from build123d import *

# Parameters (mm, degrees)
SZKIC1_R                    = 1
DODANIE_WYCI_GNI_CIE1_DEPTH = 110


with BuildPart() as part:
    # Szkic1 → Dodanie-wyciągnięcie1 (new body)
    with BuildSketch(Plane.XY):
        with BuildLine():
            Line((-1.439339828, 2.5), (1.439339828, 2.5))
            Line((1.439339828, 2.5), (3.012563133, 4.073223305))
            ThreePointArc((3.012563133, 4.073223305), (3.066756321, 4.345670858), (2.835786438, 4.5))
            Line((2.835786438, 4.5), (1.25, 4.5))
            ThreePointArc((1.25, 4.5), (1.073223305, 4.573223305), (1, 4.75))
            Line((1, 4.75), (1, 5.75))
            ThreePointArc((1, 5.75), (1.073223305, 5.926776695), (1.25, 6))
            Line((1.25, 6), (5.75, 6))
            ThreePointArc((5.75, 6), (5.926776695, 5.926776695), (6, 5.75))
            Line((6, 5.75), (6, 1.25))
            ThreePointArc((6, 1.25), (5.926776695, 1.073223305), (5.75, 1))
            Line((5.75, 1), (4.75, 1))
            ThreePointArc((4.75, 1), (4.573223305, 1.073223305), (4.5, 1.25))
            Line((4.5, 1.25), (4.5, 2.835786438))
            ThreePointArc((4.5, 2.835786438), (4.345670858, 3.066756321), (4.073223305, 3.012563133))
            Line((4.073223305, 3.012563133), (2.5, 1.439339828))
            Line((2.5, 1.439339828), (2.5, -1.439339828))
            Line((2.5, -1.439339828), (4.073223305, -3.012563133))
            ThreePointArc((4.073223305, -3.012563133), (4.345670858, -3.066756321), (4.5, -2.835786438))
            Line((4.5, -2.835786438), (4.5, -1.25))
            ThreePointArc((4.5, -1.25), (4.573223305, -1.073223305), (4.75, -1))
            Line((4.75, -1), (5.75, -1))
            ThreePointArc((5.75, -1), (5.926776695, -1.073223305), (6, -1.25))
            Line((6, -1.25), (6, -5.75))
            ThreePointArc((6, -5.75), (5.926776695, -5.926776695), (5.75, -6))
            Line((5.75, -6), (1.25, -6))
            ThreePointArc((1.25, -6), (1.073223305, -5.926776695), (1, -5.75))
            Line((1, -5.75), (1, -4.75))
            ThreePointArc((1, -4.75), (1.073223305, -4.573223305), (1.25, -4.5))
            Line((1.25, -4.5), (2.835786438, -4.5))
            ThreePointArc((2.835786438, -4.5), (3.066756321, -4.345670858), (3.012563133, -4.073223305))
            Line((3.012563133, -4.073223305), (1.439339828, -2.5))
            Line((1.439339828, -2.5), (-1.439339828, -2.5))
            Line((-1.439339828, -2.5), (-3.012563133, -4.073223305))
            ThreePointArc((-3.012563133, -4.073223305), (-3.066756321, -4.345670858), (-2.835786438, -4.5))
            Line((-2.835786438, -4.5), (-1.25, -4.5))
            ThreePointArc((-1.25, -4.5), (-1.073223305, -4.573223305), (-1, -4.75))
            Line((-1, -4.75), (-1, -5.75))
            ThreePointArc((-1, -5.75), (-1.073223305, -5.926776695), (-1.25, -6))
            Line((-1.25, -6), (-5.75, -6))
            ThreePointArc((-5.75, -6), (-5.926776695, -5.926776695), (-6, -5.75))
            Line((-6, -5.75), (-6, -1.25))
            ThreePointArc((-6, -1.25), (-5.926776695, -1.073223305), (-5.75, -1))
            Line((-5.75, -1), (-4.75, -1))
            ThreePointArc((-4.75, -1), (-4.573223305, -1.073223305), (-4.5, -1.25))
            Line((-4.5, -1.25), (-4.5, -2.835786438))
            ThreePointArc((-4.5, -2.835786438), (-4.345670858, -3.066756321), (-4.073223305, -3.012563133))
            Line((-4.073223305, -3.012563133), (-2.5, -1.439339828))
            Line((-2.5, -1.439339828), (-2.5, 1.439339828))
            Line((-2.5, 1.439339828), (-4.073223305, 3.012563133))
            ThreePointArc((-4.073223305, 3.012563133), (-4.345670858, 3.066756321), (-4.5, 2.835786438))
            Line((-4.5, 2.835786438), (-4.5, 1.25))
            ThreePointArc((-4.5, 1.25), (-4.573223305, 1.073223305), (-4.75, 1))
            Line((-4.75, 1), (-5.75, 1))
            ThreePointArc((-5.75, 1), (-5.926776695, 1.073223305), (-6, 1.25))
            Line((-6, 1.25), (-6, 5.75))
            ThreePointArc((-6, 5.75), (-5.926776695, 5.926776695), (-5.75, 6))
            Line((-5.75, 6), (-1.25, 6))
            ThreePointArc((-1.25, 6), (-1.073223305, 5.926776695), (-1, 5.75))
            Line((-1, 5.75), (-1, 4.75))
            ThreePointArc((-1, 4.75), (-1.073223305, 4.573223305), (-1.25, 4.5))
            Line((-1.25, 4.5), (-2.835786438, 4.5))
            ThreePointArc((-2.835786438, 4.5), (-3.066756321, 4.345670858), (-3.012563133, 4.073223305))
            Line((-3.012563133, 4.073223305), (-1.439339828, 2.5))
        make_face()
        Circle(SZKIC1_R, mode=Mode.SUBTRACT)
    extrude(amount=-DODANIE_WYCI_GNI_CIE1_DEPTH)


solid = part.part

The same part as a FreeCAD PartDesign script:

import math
import FreeCAD as App
import Part
import Sketcher
Q = App.Units.Quantity

doc = App.newDocument("Part")
body = doc.addObject("PartDesign::Body", "Body")

sketch1 = doc.addObject("Sketcher::SketchObject", "Sketch")
body.addObject(sketch1)
sketch1.AttachmentSupport = (doc.XY_Plane, [""])
sketch1.MapMode = "FlatFace"
sketch1.addGeometry([
    Part.LineSegment(App.Vector(1.44, 2.5, 0), App.Vector(-1.44, 2.5, 0)),
    Part.LineSegment(App.Vector(-1.44, 2.5, 0), App.Vector(-3.01, 4.07, 0)),
    Part.ArcOfCircle(Part.Circle(App.Vector(-2.84, 4.25, 0), App.Vector(0, 0, 1), 0.25), math.radians(90), math.radians(225)),
    Part.LineSegment(App.Vector(-2.84, 4.5, 0), App.Vector(-1.25, 4.5, 0)),
    Part.ArcOfCircle(Part.Circle(App.Vector(-1.25, 4.75, 0), App.Vector(0, 0, 1), 0.25), math.radians(-90), math.radians(0)),
    Part.LineSegment(App.Vector(-1, 4.75, 0), App.Vector(-1, 5.75, 0)),
    Part.ArcOfCircle(Part.Circle(App.Vector(-1.25, 5.75, 0), App.Vector(0, 0, 1), 0.25), math.radians(0), math.radians(90)),
    Part.LineSegment(App.Vector(-1.25, 6, 0), App.Vector(-5.75, 6, 0)),
    Part.ArcOfCircle(Part.Circle(App.Vector(-5.75, 5.75, 0), App.Vector(0, 0, 1), 0.25), math.radians(90), math.radians(180)),
    Part.LineSegment(App.Vector(-6, 5.75, 0), App.Vector(-6, 1.25, 0)),
    Part.ArcOfCircle(Part.Circle(App.Vector(-5.75, 1.25, 0), App.Vector(0, 0, 1), 0.25), math.radians(-180), math.radians(-90)),
    Part.LineSegment(App.Vector(-5.75, 1, 0), App.Vector(-4.75, 1, 0)),
    Part.ArcOfCircle(Part.Circle(App.Vector(-4.75, 1.25, 0), App.Vector(0, 0, 1), 0.25), math.radians(-90), math.radians(0)),
    Part.LineSegment(App.Vector(-4.5, 1.25, 0), App.Vector(-4.5, 2.84, 0)),
    Part.ArcOfCircle(Part.Circle(App.Vector(-4.25, 2.84, 0), App.Vector(0, 0, 1), 0.25), math.radians(45), math.radians(180)),
    Part.LineSegment(App.Vector(-4.07, 3.01, 0), App.Vector(-2.5, 1.44, 0)),
    Part.LineSegment(App.Vector(-2.5, 1.44, 0), App.Vector(-2.5, -1.44, 0)),
    Part.LineSegment(App.Vector(-2.5, -1.44, 0), App.Vector(-4.07, -3.01, 0)),
    Part.ArcOfCircle(Part.Circle(App.Vector(-4.25, -2.84, 0), App.Vector(0, 0, 1), 0.25), math.radians(180), math.radians(315)),
    Part.LineSegment(App.Vector(-4.5, -2.84, 0), App.Vector(-4.5, -1.25, 0)),
    Part.ArcOfCircle(Part.Circle(App.Vector(-4.75, -1.25, 0), App.Vector(0, 0, 1), 0.25), math.radians(0), math.radians(90)),
    Part.LineSegment(App.Vector(-4.75, -1, 0), App.Vector(-5.75, -1, 0)),
    Part.ArcOfCircle(Part.Circle(App.Vector(-5.75, -1.25, 0), App.Vector(0, 0, 1), 0.25), math.radians(90), math.radians(180)),
    Part.LineSegment(App.Vector(-6, -1.25, 0), App.Vector(-6, -5.75, 0)),
    Part.ArcOfCircle(Part.Circle(App.Vector(-5.75, -5.75, 0), App.Vector(0, 0, 1), 0.25), math.radians(-180), math.radians(-90)),
    Part.LineSegment(App.Vector(-5.75, -6, 0), App.Vector(-1.25, -6, 0)),
    Part.ArcOfCircle(Part.Circle(App.Vector(-1.25, -5.75, 0), App.Vector(0, 0, 1), 0.25), math.radians(-90), math.radians(0)),
    Part.LineSegment(App.Vector(-1, -5.75, 0), App.Vector(-1, -4.75, 0)),
    Part.ArcOfCircle(Part.Circle(App.Vector(-1.25, -4.75, 0), App.Vector(0, 0, 1), 0.25), math.radians(0), math.radians(90)),
    Part.LineSegment(App.Vector(-1.25, -4.5, 0), App.Vector(-2.84, -4.5, 0)),
    Part.ArcOfCircle(Part.Circle(App.Vector(-2.84, -4.25, 0), App.Vector(0, 0, 1), 0.25), math.radians(135), math.radians(270)),
    Part.LineSegment(App.Vector(-3.01, -4.07, 0), App.Vector(-1.44, -2.5, 0)),
    Part.LineSegment(App.Vector(-1.44, -2.5, 0), App.Vector(1.44, -2.5, 0)),
    Part.LineSegment(App.Vector(1.44, -2.5, 0), App.Vector(3.01, -4.07, 0)),
    Part.ArcOfCircle(Part.Circle(App.Vector(2.84, -4.25, 0), App.Vector(0, 0, 1), 0.25), math.radians(-90), math.radians(45)),
    Part.LineSegment(App.Vector(2.84, -4.5, 0), App.Vector(1.25, -4.5, 0)),
    Part.ArcOfCircle(Part.Circle(App.Vector(1.25, -4.75, 0), App.Vector(0, 0, 1), 0.25), math.radians(90), math.radians(180)),
    Part.LineSegment(App.Vector(1, -4.75, 0), App.Vector(1, -5.75, 0)),
    Part.ArcOfCircle(Part.Circle(App.Vector(1.25, -5.75, 0), App.Vector(0, 0, 1), 0.25), math.radians(-180), math.radians(-90)),
    Part.LineSegment(App.Vector(1.25, -6, 0), App.Vector(5.75, -6, 0)),
    Part.ArcOfCircle(Part.Circle(App.Vector(5.75, -5.75, 0), App.Vector(0, 0, 1), 0.25), math.radians(-90), math.radians(0)),
    Part.LineSegment(App.Vector(6, -5.75, 0), App.Vector(6, -1.25, 0)),
    Part.ArcOfCircle(Part.Circle(App.Vector(5.75, -1.25, 0), App.Vector(0, 0, 1), 0.25), math.radians(0), math.radians(90)),
    Part.LineSegment(App.Vector(5.75, -1, 0), App.Vector(4.75, -1, 0)),
    Part.ArcOfCircle(Part.Circle(App.Vector(4.75, -1.25, 0), App.Vector(0, 0, 1), 0.25), math.radians(90), math.radians(180)),
    Part.LineSegment(App.Vector(4.5, -1.25, 0), App.Vector(4.5, -2.84, 0)),
    Part.ArcOfCircle(Part.Circle(App.Vector(4.25, -2.84, 0), App.Vector(0, 0, 1), 0.25), math.radians(-135), math.radians(0)),
    Part.LineSegment(App.Vector(4.07, -3.01, 0), App.Vector(2.5, -1.44, 0)),
    Part.LineSegment(App.Vector(2.5, -1.44, 0), App.Vector(2.5, 1.44, 0)),
    Part.LineSegment(App.Vector(2.5, 1.44, 0), App.Vector(4.07, 3.01, 0)),
    Part.ArcOfCircle(Part.Circle(App.Vector(4.25, 2.84, 0), App.Vector(0, 0, 1), 0.25), math.radians(0), math.radians(135)),
    Part.LineSegment(App.Vector(4.5, 2.84, 0), App.Vector(4.5, 1.25, 0)),
    Part.ArcOfCircle(Part.Circle(App.Vector(4.75, 1.25, 0), App.Vector(0, 0, 1), 0.25), math.radians(-180), math.radians(-90)),
    Part.LineSegment(App.Vector(4.75, 1, 0), App.Vector(5.75, 1, 0)),
    Part.ArcOfCircle(Part.Circle(App.Vector(5.75, 1.25, 0), App.Vector(0, 0, 1), 0.25), math.radians(-90), math.radians(0)),
    Part.LineSegment(App.Vector(6, 1.25, 0), App.Vector(6, 5.75, 0)),
    Part.ArcOfCircle(Part.Circle(App.Vector(5.75, 5.75, 0), App.Vector(0, 0, 1), 0.25), math.radians(0), math.radians(90)),
    Part.LineSegment(App.Vector(5.75, 6, 0), App.Vector(1.25, 6, 0)),
    Part.ArcOfCircle(Part.Circle(App.Vector(1.25, 5.75, 0), App.Vector(0, 0, 1), 0.25), math.radians(90), math.radians(180)),
    Part.LineSegment(App.Vector(1, 5.75, 0), App.Vector(1, 4.75, 0)),
    Part.ArcOfCircle(Part.Circle(App.Vector(1.25, 4.75, 0), App.Vector(0, 0, 1), 0.25), math.radians(-180), math.radians(-90)),
    Part.LineSegment(App.Vector(1.25, 4.5, 0), App.Vector(2.84, 4.5, 0)),
    Part.ArcOfCircle(Part.Circle(App.Vector(2.84, 4.25, 0), App.Vector(0, 0, 1), 0.25), math.radians(-45), math.radians(90)),
    Part.LineSegment(App.Vector(3.01, 4.07, 0), App.Vector(1.44, 2.5, 0)),
    Part.Circle(App.Vector(0, 0, 0), App.Vector(0, 0, 1), 1),
], False)
sketch1.addConstraint([
    Sketcher.Constraint("Coincident", 0, 2, 1, 1),
    Sketcher.Constraint("Tangent", 1, 2, 2, 2),
    Sketcher.Constraint("Tangent", 2, 1, 3, 1),
    Sketcher.Constraint("Tangent", 3, 2, 4, 1),
    Sketcher.Constraint("Tangent", 4, 2, 5, 1),
    Sketcher.Constraint("Tangent", 5, 2, 6, 1),
    Sketcher.Constraint("Tangent", 6, 2, 7, 1),
    Sketcher.Constraint("Tangent", 7, 2, 8, 1),
    Sketcher.Constraint("Tangent", 8, 2, 9, 1),
    Sketcher.Constraint("Tangent", 9, 2, 10, 1),
    Sketcher.Constraint("Tangent", 10, 2, 11, 1),
    Sketcher.Constraint("Tangent", 11, 2, 12, 1),
    Sketcher.Constraint("Tangent", 12, 2, 13, 1),
    Sketcher.Constraint("Tangent", 13, 2, 14, 2),
    Sketcher.Constraint("Tangent", 14, 1, 15, 1),
    Sketcher.Constraint("Coincident", 15, 2, 16, 1),
    Sketcher.Constraint("Coincident", 16, 2, 17, 1),
    Sketcher.Constraint("Tangent", 17, 2, 18, 2),
    Sketcher.Constraint("Tangent", 18, 1, 19, 1),
    Sketcher.Constraint("Tangent", 19, 2, 20, 1),
    Sketcher.Constraint("Tangent", 20, 2, 21, 1),
    Sketcher.Constraint("Tangent", 21, 2, 22, 1),
    Sketcher.Constraint("Tangent", 22, 2, 23, 1),
    Sketcher.Constraint("Tangent", 23, 2, 24, 1),
    Sketcher.Constraint("Tangent", 24, 2, 25, 1),
    Sketcher.Constraint("Tangent", 25, 2, 26, 1),
    Sketcher.Constraint("Tangent", 26, 2, 27, 1),
    Sketcher.Constraint("Tangent", 27, 2, 28, 1),
    Sketcher.Constraint("Tangent", 28, 2, 29, 1),
    Sketcher.Constraint("Tangent", 29, 2, 30, 2),
    Sketcher.Constraint("Tangent", 30, 1, 31, 1),
    Sketcher.Constraint("Coincident", 31, 2, 32, 1),
    Sketcher.Constraint("Coincident", 32, 2, 33, 1),
    Sketcher.Constraint("Tangent", 33, 2, 34, 2),
    Sketcher.Constraint("Tangent", 34, 1, 35, 1),
    Sketcher.Constraint("Tangent", 35, 2, 36, 1),
    Sketcher.Constraint("Tangent", 36, 2, 37, 1),
    Sketcher.Constraint("Tangent", 37, 2, 38, 1),
    Sketcher.Constraint("Tangent", 38, 2, 39, 1),
    Sketcher.Constraint("Tangent", 39, 2, 40, 1),
    Sketcher.Constraint("Tangent", 40, 2, 41, 1),
    Sketcher.Constraint("Tangent", 41, 2, 42, 1),
    Sketcher.Constraint("Tangent", 42, 2, 43, 1),
    Sketcher.Constraint("Tangent", 43, 2, 44, 1),
    Sketcher.Constraint("Tangent", 44, 2, 45, 1),
    Sketcher.Constraint("Tangent", 45, 2, 46, 2),
    Sketcher.Constraint("Tangent", 46, 1, 47, 1),
    Sketcher.Constraint("Coincident", 47, 2, 48, 1),
    Sketcher.Constraint("Coincident", 48, 2, 49, 1),
    Sketcher.Constraint("Tangent", 49, 2, 50, 2),
    Sketcher.Constraint("Tangent", 50, 1, 51, 1),
    Sketcher.Constraint("Tangent", 51, 2, 52, 1),
    Sketcher.Constraint("Tangent", 52, 2, 53, 1),
    Sketcher.Constraint("Tangent", 53, 2, 54, 1),
    Sketcher.Constraint("Tangent", 54, 2, 55, 1),
    Sketcher.Constraint("Tangent", 55, 2, 56, 1),
    Sketcher.Constraint("Tangent", 56, 2, 57, 1),
    Sketcher.Constraint("Tangent", 57, 2, 58, 1),
    Sketcher.Constraint("Tangent", 58, 2, 59, 1),
    Sketcher.Constraint("Tangent", 59, 2, 60, 1),
    Sketcher.Constraint("Tangent", 60, 2, 61, 1),
    Sketcher.Constraint("Tangent", 61, 2, 62, 2),
    Sketcher.Constraint("Tangent", 62, 1, 63, 1),
    Sketcher.Constraint("Coincident", 63, 2, 0, 1),
    Sketcher.Constraint("Horizontal", 0),
    Sketcher.Constraint("Horizontal", 3),
    Sketcher.Constraint("Vertical", 5),
    Sketcher.Constraint("Horizontal", 7),
    Sketcher.Constraint("Vertical", 9),
    Sketcher.Constraint("Horizontal", 11),
    Sketcher.Constraint("Vertical", 13),
    Sketcher.Constraint("Vertical", 16),
    Sketcher.Constraint("Vertical", 19),
    Sketcher.Constraint("Horizontal", 21),
    Sketcher.Constraint("Vertical", 23),
    Sketcher.Constraint("Horizontal", 25),
    Sketcher.Constraint("Vertical", 27),
    Sketcher.Constraint("Horizontal", 29),
    Sketcher.Constraint("Horizontal", 32),
    Sketcher.Constraint("Horizontal", 35),
    Sketcher.Constraint("Vertical", 37),
    Sketcher.Constraint("Horizontal", 39),
    Sketcher.Constraint("Vertical", 41),
    Sketcher.Constraint("Horizontal", 43),
    Sketcher.Constraint("Vertical", 45),
    Sketcher.Constraint("Vertical", 48),
    Sketcher.Constraint("Vertical", 51),
    Sketcher.Constraint("Horizontal", 53),
    Sketcher.Constraint("Vertical", 55),
    Sketcher.Constraint("Horizontal", 57),
    Sketcher.Constraint("Vertical", 59),
    Sketcher.Constraint("Horizontal", 61),
    Sketcher.Constraint("Coincident", 64, 3, -1, 1),
    Sketcher.Constraint("Equal", 2, 4),
    Sketcher.Constraint("Equal", 4, 6),
    Sketcher.Constraint("Equal", 6, 8),
    Sketcher.Constraint("Equal", 8, 10),
    Sketcher.Constraint("Equal", 10, 12),
    Sketcher.Constraint("Equal", 12, 14),
    Sketcher.Constraint("Equal", 14, 18),
    Sketcher.Constraint("Equal", 18, 20),
    Sketcher.Constraint("Equal", 20, 22),
    Sketcher.Constraint("Equal", 22, 24),
    Sketcher.Constraint("Equal", 24, 26),
    Sketcher.Constraint("Equal", 26, 28),
    Sketcher.Constraint("Equal", 28, 30),
    Sketcher.Constraint("Equal", 30, 34),
    Sketcher.Constraint("Equal", 34, 36),
    Sketcher.Constraint("Equal", 36, 38),
    Sketcher.Constraint("Equal", 38, 40),
    Sketcher.Constraint("Equal", 40, 42),
    Sketcher.Constraint("Equal", 42, 44),
    Sketcher.Constraint("Equal", 44, 46),
    Sketcher.Constraint("Equal", 46, 50),
    Sketcher.Constraint("Equal", 50, 52),
    Sketcher.Constraint("Equal", 52, 54),
    Sketcher.Constraint("Equal", 54, 56),
    Sketcher.Constraint("Equal", 56, 58),
    Sketcher.Constraint("Equal", 58, 60),
    Sketcher.Constraint("Equal", 60, 62),
    Sketcher.Constraint("Symmetric", 2, 3, 34, 3, -1, 1),
    Sketcher.Constraint("Symmetric", 6, 3, 38, 3, -1, 1),
    Sketcher.Constraint("Symmetric", 10, 3, 42, 3, -1, 1),
    Sketcher.Constraint("Symmetric", 14, 3, 46, 3, -1, 1),
    Sketcher.Constraint("Symmetric", 18, 3, 50, 3, -1, 1),
    Sketcher.Constraint("Symmetric", 22, 3, 54, 3, -1, 1),
    Sketcher.Constraint("Symmetric", 26, 3, 58, 3, -1, 1),
    Sketcher.Constraint("Symmetric", 30, 3, 62, 3, -1, 1),
    Sketcher.Constraint("Symmetric", 0, 2, 32, 2, -1, 1),
    Sketcher.Constraint("Symmetric", 15, 2, 47, 2, -1, 1),
    Sketcher.Constraint("Symmetric", 30, 3, 34, 3, -2),
    Sketcher.Constraint("Symmetric", 26, 3, 38, 3, -2),
    Sketcher.Constraint("Symmetric", 22, 3, 42, 3, -2),
    Sketcher.Constraint("Symmetric", 18, 3, 46, 3, -2),
    Sketcher.Constraint("Parallel", 1, 15),
    Sketcher.Constraint("Perpendicular", 15, 17),
    Sketcher.Constraint("Parallel", 17, 31),
    Sketcher.Constraint("Perpendicular", 47, 49),
    Sketcher.Constraint("Parallel", 49, 63),
    Sketcher.Constraint("Horizontal", 30, 1, 33, 2),
    Sketcher.Constraint("Equal", 53, 5),
    Sketcher.Constraint("Equal", 57, 9),
    Sketcher.Constraint("Equal", 61, 13),
    Sketcher.Constraint("Equal", 32, 16),
    Sketcher.Constraint("Equal", 1, 15),
    Sketcher.Constraint("Diameter", 64, Q("2 mm")),
    Sketcher.Constraint("DistanceX", 11, 1, 11, 2, Q("1 mm")),
    Sketcher.Constraint("Radius", 2, Q("0.25 mm")),
    Sketcher.Constraint("DistanceX", 7, 2, 7, 1, Q("4.5 mm")),
    Sketcher.Constraint("DistanceX", 4, 2, -1, 1, Q("1 mm")),
    Sketcher.Constraint("DistanceY", -1, 1, 0, 2, Q("2.5 mm")),
    Sketcher.Constraint("DistanceX", 0, 2, 0, 1, Q("2.87868 mm")),
])
pad1 = doc.addObject("PartDesign::Pad", "Pad")
body.addObject(pad1)
pad1.Profile = sketch1
pad1.Length = 110
pad1.Reversed = True

doc.recompute()
